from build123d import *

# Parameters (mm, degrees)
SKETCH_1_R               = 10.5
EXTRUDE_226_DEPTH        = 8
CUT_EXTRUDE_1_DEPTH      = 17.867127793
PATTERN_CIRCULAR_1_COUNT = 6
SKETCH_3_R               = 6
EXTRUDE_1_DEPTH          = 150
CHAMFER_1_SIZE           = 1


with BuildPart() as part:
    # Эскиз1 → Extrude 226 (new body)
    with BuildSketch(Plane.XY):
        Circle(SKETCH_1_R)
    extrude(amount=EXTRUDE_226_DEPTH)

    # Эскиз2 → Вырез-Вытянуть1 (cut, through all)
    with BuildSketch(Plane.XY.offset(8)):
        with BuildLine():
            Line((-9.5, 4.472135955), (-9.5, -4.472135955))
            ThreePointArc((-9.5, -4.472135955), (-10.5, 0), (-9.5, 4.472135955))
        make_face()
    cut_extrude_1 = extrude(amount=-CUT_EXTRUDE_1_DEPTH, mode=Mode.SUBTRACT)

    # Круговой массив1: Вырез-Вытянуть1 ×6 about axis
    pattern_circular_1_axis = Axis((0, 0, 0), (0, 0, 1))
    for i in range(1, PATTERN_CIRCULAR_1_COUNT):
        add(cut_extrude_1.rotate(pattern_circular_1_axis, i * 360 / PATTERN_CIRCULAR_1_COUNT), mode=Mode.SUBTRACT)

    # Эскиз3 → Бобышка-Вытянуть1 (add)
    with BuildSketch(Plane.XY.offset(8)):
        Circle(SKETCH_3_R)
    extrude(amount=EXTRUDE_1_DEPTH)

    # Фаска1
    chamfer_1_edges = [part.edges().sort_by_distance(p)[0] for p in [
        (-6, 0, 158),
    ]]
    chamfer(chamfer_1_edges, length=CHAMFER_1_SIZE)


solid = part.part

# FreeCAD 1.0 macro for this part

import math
import FreeCAD as App
import Part
import Sketcher


def edges_at(feature, points):
    """Names of the edges that pass closest to the given points."""
    edges = feature.Shape.Edges
    near = lambda p: min(range(len(edges)), key=lambda i: edges[i].distToShape(Part.Vertex(*p))[0])
    return sorted({f"Edge{near(p) + 1}" for p in points})

doc = App.newDocument("Part")
body = doc.addObject("PartDesign::Body", "Body")

sketch1 = body.newObject("Sketcher::SketchObject", "Sketch")
sketch1.AttachmentSupport = (doc.getObject("XY_Plane"), [""])
sketch1.MapMode = "FlatFace"
sketch1.addGeometry(Part.Circle(App.Vector(0, 0, 0), App.Vector(0, 0, 1), 10.5), False)
sketch1.addConstraint(Sketcher.Constraint("Coincident", 0, 3, -1, 1))
sketch1.addConstraint(Sketcher.Constraint("Diameter", 0, 21.0))
pad1 = body.newObject("PartDesign::Pad", "Pad")
pad1.Profile = sketch1
pad1.Length = 8

sketch2 = body.newObject("Sketcher::SketchObject", "Sketch001")
sketch2.AttachmentSupport = (doc.getObject("XY_Plane"), [""])
sketch2.MapMode = "FlatFace"
sketch2.AttachmentOffset = App.Placement(App.Vector(0, 0, 8), App.Rotation())
sketch2.addGeometry(Part.LineSegment(App.Vector(-9.5, -4.472136, 0), App.Vector(-9.5, 4.472136, 0)), False)
sketch2.addGeometry(Part.ArcOfCircle(Part.Circle(App.Vector(0, 0, 0), App.Vector(0, 0, 1), 10.5), math.radians(154.791235), math.radians(205.208765)), False)
sketch2.addConstraint(Sketcher.Constraint("Coincident", 0, 1, 1, 2))
sketch2.addConstraint(Sketcher.Constraint("Coincident", 1, 1, 0, 2))
sketch2.addConstraint(Sketcher.Constraint("Vertical", 0))
sketch2.addConstraint(Sketcher.Constraint("Coincident", 1, 3, -1, 1))
sketch2.addConstraint(Sketcher.Constraint("Radius", 1, 10.5))
sketch2.addConstraint(Sketcher.Constraint("DistanceX", 0, 1, -1, 1, 9.5))
pocket1 = body.newObject("PartDesign::Pocket", "Pocket")
pocket1.Profile = sketch2
pocket1.Type = "ThroughAll"
doc.recompute()

polarpattern = body.newObject("PartDesign::PolarPattern", "PolarPattern")
polarpattern.Originals = [pocket1]
polarpattern.Axis = (doc.getObject("Z_Axis"), [""])
polarpattern.Angle = 360
polarpattern.Occurrences = 6
body.Tip = polarpattern

sketch3 = body.newObject("Sketcher::SketchObject", "Sketch002")
sketch3.AttachmentSupport = (doc.getObject("XY_Plane"), [""])
sketch3.MapMode = "FlatFace"
sketch3.AttachmentOffset = App.Placement(App.Vector(0, 0, 8), App.Rotation())
sketch3.addGeometry(Part.Circle(App.Vector(0, 0, 0), App.Vector(0, 0, 1), 6), False)
sketch3.addConstraint(Sketcher.Constraint("Coincident", 0, 3, -1, 1))
sketch3.addConstraint(Sketcher.Constraint("Diameter", 0, 12.0))
pad2 = body.newObject("PartDesign::Pad", "Pad001")
pad2.Profile = sketch3
pad2.Length = 150
doc.recompute()

chamfer = body.newObject("PartDesign::Chamfer", "Chamfer")
chamfer.Base = (pad2, edges_at(pad2, [(-6, 0, 158)]))
chamfer.Size = 1

doc.recompute()
